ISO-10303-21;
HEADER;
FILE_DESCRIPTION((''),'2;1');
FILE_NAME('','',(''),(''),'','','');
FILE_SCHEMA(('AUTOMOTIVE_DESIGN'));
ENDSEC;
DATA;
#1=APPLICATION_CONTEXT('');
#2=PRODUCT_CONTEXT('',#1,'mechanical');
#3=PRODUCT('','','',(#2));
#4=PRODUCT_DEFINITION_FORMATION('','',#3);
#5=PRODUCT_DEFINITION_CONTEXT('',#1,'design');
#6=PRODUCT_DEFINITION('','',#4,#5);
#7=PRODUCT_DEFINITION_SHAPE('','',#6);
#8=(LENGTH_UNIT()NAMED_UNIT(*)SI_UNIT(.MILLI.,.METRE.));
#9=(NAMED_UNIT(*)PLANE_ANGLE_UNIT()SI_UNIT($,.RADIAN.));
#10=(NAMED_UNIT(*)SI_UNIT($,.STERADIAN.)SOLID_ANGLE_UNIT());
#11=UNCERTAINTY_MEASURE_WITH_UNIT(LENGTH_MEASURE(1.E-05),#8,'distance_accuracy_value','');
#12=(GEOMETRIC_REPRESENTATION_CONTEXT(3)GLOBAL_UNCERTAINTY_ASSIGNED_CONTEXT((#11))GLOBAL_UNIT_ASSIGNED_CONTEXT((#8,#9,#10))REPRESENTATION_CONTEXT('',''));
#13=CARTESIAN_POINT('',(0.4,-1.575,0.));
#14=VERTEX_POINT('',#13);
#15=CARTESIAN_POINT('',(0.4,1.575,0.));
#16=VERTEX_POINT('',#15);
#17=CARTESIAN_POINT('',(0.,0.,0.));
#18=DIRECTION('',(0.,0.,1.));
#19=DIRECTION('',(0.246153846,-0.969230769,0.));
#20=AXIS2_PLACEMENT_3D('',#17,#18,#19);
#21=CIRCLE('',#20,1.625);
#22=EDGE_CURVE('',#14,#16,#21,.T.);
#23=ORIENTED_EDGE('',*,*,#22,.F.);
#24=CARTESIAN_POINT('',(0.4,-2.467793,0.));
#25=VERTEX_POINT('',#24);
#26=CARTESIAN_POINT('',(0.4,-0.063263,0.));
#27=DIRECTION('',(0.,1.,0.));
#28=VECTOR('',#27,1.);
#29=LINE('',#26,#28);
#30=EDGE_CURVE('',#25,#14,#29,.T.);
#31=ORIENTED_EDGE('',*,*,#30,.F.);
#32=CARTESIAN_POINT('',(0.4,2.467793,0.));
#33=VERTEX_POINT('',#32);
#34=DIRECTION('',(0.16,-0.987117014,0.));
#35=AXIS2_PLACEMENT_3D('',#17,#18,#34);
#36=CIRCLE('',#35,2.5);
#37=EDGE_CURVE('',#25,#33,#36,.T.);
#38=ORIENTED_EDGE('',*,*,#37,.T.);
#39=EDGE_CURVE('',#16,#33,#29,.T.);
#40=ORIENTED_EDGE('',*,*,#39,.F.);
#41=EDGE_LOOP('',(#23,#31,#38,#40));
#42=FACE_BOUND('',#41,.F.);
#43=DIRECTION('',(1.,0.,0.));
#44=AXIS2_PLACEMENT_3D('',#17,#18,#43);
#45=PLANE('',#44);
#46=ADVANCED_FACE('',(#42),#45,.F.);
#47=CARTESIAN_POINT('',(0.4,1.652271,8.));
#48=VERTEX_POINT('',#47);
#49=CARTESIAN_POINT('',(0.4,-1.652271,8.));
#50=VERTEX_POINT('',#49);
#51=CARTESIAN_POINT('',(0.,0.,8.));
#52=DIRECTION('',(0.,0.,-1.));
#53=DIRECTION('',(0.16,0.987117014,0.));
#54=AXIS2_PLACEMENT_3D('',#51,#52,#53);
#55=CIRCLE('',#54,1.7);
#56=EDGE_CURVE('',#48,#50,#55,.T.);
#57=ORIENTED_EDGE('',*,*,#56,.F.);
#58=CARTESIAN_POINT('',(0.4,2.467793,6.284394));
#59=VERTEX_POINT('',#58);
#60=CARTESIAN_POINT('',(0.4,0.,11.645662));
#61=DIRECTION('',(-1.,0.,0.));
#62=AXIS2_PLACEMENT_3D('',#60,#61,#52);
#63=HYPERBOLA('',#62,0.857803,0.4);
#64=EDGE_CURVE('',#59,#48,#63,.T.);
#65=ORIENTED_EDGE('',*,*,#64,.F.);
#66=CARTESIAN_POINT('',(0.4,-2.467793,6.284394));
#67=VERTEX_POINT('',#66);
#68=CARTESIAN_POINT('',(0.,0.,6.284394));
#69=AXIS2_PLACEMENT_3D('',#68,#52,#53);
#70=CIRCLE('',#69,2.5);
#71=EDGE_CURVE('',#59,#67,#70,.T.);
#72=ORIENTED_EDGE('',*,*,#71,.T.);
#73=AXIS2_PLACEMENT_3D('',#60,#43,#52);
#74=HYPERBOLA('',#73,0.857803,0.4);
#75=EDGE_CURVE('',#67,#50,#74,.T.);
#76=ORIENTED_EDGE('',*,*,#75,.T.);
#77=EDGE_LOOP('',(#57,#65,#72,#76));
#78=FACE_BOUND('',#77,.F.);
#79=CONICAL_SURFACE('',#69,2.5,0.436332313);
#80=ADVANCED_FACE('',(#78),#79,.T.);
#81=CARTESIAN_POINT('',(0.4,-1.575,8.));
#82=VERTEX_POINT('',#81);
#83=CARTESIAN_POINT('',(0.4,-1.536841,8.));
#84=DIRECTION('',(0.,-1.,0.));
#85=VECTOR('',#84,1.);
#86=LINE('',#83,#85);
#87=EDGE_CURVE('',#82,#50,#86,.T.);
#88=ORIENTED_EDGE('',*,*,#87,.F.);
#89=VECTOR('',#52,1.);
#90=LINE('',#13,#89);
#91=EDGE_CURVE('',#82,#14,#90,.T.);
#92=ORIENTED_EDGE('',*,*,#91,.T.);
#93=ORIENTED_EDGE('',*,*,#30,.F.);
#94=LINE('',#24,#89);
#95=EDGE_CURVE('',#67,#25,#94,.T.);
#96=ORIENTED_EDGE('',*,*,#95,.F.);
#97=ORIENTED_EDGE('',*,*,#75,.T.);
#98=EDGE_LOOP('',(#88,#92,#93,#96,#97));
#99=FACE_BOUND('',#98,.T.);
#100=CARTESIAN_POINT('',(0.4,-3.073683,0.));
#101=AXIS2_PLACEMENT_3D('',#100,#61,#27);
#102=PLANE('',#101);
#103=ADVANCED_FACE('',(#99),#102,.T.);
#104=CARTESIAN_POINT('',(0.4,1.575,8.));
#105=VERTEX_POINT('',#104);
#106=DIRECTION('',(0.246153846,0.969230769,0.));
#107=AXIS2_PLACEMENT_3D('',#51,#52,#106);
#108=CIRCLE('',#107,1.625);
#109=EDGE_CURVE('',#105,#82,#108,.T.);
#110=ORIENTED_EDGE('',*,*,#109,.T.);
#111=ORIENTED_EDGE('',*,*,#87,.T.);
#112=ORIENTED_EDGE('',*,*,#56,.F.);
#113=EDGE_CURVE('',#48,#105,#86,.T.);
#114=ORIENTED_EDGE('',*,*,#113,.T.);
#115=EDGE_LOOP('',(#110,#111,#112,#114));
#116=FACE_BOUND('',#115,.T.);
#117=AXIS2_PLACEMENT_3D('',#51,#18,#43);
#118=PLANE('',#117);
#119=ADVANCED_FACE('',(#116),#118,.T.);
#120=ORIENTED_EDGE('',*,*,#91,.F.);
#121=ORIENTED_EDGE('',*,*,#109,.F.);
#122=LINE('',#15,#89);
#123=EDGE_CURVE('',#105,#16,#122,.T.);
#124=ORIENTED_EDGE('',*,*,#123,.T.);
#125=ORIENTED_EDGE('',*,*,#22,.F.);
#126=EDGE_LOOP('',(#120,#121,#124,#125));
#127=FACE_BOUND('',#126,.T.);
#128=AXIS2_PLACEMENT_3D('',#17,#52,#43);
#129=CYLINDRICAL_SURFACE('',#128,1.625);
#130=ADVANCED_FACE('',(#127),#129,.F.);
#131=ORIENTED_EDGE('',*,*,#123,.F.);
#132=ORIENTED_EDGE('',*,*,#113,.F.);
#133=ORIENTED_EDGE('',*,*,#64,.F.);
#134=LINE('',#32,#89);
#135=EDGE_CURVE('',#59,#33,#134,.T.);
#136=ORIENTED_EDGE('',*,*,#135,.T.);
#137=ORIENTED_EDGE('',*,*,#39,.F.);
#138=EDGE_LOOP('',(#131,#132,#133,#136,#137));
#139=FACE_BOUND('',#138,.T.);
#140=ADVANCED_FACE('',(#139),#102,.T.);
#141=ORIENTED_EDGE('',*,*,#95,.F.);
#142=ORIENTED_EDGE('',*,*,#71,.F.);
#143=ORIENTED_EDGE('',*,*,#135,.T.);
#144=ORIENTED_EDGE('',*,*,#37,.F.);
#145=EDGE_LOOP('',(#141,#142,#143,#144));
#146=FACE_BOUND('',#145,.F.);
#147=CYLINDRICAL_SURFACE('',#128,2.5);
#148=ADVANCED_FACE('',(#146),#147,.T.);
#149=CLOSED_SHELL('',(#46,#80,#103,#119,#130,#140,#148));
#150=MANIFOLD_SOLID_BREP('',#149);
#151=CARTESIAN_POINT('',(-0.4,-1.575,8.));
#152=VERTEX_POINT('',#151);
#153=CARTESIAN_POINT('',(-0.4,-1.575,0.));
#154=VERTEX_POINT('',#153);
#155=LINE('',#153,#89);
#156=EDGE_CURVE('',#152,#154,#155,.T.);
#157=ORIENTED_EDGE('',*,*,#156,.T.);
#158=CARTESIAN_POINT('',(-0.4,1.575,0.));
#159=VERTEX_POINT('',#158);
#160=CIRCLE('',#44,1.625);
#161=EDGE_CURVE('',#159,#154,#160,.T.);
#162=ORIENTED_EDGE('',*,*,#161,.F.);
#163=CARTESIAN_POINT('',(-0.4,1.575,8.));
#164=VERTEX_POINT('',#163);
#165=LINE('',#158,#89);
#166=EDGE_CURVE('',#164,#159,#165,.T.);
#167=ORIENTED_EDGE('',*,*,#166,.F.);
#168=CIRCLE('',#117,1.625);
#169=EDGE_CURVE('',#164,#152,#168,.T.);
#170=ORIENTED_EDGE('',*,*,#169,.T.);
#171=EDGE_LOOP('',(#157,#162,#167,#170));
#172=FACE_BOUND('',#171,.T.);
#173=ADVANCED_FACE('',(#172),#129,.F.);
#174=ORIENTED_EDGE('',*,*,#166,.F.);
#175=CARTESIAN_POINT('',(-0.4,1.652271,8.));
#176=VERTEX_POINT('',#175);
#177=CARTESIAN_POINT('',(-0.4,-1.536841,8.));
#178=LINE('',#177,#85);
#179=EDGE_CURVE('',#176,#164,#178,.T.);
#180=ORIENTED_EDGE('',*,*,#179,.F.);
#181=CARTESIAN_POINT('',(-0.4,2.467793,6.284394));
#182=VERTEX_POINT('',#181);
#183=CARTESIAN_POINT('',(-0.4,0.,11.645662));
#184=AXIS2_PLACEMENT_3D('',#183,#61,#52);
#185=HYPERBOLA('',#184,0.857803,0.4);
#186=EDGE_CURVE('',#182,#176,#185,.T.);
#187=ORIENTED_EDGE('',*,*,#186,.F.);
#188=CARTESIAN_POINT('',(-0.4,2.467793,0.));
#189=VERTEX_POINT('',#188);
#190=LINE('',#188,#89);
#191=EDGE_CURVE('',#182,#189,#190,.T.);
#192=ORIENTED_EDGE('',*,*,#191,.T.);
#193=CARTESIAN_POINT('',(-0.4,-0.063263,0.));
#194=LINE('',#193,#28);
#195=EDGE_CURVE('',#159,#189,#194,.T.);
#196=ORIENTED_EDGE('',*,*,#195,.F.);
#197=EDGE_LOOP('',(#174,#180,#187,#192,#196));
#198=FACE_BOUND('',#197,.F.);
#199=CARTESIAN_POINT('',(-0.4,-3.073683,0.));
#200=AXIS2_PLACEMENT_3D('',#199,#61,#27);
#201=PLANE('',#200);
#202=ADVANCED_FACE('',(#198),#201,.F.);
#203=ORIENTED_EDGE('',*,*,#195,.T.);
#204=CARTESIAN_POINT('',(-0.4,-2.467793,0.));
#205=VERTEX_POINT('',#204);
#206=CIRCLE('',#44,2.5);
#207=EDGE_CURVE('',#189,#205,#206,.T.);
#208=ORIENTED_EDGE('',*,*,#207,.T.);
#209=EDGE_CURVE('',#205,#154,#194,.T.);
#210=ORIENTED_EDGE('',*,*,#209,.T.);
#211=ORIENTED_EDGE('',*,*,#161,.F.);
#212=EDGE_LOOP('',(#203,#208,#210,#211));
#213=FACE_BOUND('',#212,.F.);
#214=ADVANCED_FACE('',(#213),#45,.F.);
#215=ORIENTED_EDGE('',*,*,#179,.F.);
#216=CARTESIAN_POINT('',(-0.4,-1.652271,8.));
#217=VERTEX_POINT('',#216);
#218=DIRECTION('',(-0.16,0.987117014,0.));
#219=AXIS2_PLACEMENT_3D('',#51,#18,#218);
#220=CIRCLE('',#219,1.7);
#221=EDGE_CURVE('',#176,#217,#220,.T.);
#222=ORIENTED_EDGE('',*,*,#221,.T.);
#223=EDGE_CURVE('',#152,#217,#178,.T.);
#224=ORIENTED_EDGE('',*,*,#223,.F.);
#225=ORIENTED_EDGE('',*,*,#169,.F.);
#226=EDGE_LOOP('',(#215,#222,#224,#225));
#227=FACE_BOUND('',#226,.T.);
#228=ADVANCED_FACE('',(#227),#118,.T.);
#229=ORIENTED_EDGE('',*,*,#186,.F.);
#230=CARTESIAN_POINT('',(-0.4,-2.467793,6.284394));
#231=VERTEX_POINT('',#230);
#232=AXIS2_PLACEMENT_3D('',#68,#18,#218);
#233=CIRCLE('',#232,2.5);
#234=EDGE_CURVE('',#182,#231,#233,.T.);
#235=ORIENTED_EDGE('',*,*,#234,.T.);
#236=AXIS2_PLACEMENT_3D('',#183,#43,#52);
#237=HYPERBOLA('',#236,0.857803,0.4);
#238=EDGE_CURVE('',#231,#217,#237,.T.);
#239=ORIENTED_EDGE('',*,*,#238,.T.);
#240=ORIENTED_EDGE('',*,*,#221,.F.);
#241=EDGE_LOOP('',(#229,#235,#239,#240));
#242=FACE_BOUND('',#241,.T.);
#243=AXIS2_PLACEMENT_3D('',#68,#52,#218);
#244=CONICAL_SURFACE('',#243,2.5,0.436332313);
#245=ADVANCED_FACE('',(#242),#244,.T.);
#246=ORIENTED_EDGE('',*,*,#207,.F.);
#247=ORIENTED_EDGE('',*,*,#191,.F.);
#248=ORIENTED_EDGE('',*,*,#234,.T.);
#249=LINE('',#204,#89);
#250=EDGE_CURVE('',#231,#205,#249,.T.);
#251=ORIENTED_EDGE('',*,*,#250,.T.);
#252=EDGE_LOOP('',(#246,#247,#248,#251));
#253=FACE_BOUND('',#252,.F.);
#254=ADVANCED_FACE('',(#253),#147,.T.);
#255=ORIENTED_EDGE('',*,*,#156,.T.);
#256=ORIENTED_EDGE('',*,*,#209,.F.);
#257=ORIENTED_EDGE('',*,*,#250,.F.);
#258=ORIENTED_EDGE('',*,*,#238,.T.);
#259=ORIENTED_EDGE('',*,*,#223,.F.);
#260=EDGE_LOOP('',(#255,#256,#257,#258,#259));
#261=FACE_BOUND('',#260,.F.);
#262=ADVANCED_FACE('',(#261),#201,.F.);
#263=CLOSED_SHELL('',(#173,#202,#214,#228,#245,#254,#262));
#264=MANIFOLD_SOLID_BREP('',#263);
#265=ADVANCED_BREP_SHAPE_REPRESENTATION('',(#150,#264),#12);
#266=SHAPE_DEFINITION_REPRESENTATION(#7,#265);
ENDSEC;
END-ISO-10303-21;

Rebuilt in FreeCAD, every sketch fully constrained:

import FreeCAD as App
import Part
import Sketcher

V = App.Vector


def edges_at(feature, points):
    """Names of the edges that pass closest to the given points."""
    edges = feature.Shape.Edges
    near = lambda p: min(range(len(edges)), key=lambda i: edges[i].distToShape(Part.Vertex(*p))[0])
    return sorted({f"Edge{near(p) + 1}" for p in points})


def add_polygon(sketch, points):
    """Adds a closed chain of lines whose ends are joined by coincident constraints."""
    first, n = sketch.GeometryCount, len(points)
    for a, b in zip(points, points[1:] + points[:1]):
        sketch.addGeometry(Part.LineSegment(App.Vector(*a, 0), App.Vector(*b, 0)), False)
    for i in range(n):
        sketch.addConstraint(Sketcher.Constraint("Coincident", first + i, 2, first + (i + 1) % n, 1))

doc = App.newDocument("Part")
body = doc.addObject("PartDesign::Body", "Body")
body.AllowCompound = True

sketch1 = body.newObject("Sketcher::SketchObject", "Sketch")
sketch1.AttachmentSupport = (doc.getObject("XY_Plane"), [""])
sketch1.MapMode = "FlatFace"
sketch1.addGeometry([
    Part.Circle(V(0, 0, 0), V(0, 0, 1), 2.5),
    Part.Circle(V(0, 0, 0), V(0, 0, 1), 1.6),
], False)
sketch1.addConstraint([
    Sketcher.Constraint("Coincident", 0, 3, -1, 1),
    Sketcher.Constraint("Coincident", 1, 3, -1, 1),
    Sketcher.Constraint("Diameter", 0, 5.0),
    Sketcher.Constraint("Diameter", 1, 3.25),
])
pad1 = body.newObject("PartDesign::Pad", "Pad")
pad1.Profile = sketch1
pad1.Length = 8

sketch2 = body.newObject("Sketcher::SketchObject", "Sketch001")
sketch2.AttachmentSupport = (doc.getObject("XY_Plane"), [""])
sketch2.MapMode = "FlatFace"
add_polygon(sketch2, [(-0.4, 2.9), (-0.4, -3.1), (0.4, -3.1), (0.4, 2.9)])
sketch2.addConstraint([
    Sketcher.Constraint("Vertical", 0),
    Sketcher.Constraint("Horizontal", 1),
    Sketcher.Constraint("Vertical", 2),
    Sketcher.Constraint("Horizontal", 3),
    Sketcher.Constraint("DistanceX", 1, 1, 1, 2, 0.8),
    Sketcher.Constraint("DistanceX", 0, 2, -1, 1, 0.4),
    Sketcher.Constraint("DistanceY", 0, 2, 0, 1, 6.02084),
    Sketcher.Constraint("DistanceY", 0, 2, -1, 1, 3.073683),
])
pocket1 = body.newObject("PartDesign::Pocket", "Pocket")
pocket1.Profile = sketch2
pocket1.Length = 25
pocket1.Reversed = True
doc.recompute()

chamfer = body.newObject("PartDesign::Chamfer", "Chamfer")
chamfer.Base = (pocket1, edges_at(pocket1, [(2.5, 0, 8)]))
chamfer.ChamferType = "Two distances"
chamfer.Size = 1.715606
chamfer.Size2 = 0.8
chamfer.FlipDirection = True
doc.recompute()

chamfer2 = body.newObject("PartDesign::Chamfer", "Chamfer001")
chamfer2.Base = (chamfer, edges_at(chamfer, [(-2.5, 0, 8)]))
chamfer2.ChamferType = "Two distances"
chamfer2.Size = 1.715606
chamfer2.Size2 = 0.8

doc.recompute()
